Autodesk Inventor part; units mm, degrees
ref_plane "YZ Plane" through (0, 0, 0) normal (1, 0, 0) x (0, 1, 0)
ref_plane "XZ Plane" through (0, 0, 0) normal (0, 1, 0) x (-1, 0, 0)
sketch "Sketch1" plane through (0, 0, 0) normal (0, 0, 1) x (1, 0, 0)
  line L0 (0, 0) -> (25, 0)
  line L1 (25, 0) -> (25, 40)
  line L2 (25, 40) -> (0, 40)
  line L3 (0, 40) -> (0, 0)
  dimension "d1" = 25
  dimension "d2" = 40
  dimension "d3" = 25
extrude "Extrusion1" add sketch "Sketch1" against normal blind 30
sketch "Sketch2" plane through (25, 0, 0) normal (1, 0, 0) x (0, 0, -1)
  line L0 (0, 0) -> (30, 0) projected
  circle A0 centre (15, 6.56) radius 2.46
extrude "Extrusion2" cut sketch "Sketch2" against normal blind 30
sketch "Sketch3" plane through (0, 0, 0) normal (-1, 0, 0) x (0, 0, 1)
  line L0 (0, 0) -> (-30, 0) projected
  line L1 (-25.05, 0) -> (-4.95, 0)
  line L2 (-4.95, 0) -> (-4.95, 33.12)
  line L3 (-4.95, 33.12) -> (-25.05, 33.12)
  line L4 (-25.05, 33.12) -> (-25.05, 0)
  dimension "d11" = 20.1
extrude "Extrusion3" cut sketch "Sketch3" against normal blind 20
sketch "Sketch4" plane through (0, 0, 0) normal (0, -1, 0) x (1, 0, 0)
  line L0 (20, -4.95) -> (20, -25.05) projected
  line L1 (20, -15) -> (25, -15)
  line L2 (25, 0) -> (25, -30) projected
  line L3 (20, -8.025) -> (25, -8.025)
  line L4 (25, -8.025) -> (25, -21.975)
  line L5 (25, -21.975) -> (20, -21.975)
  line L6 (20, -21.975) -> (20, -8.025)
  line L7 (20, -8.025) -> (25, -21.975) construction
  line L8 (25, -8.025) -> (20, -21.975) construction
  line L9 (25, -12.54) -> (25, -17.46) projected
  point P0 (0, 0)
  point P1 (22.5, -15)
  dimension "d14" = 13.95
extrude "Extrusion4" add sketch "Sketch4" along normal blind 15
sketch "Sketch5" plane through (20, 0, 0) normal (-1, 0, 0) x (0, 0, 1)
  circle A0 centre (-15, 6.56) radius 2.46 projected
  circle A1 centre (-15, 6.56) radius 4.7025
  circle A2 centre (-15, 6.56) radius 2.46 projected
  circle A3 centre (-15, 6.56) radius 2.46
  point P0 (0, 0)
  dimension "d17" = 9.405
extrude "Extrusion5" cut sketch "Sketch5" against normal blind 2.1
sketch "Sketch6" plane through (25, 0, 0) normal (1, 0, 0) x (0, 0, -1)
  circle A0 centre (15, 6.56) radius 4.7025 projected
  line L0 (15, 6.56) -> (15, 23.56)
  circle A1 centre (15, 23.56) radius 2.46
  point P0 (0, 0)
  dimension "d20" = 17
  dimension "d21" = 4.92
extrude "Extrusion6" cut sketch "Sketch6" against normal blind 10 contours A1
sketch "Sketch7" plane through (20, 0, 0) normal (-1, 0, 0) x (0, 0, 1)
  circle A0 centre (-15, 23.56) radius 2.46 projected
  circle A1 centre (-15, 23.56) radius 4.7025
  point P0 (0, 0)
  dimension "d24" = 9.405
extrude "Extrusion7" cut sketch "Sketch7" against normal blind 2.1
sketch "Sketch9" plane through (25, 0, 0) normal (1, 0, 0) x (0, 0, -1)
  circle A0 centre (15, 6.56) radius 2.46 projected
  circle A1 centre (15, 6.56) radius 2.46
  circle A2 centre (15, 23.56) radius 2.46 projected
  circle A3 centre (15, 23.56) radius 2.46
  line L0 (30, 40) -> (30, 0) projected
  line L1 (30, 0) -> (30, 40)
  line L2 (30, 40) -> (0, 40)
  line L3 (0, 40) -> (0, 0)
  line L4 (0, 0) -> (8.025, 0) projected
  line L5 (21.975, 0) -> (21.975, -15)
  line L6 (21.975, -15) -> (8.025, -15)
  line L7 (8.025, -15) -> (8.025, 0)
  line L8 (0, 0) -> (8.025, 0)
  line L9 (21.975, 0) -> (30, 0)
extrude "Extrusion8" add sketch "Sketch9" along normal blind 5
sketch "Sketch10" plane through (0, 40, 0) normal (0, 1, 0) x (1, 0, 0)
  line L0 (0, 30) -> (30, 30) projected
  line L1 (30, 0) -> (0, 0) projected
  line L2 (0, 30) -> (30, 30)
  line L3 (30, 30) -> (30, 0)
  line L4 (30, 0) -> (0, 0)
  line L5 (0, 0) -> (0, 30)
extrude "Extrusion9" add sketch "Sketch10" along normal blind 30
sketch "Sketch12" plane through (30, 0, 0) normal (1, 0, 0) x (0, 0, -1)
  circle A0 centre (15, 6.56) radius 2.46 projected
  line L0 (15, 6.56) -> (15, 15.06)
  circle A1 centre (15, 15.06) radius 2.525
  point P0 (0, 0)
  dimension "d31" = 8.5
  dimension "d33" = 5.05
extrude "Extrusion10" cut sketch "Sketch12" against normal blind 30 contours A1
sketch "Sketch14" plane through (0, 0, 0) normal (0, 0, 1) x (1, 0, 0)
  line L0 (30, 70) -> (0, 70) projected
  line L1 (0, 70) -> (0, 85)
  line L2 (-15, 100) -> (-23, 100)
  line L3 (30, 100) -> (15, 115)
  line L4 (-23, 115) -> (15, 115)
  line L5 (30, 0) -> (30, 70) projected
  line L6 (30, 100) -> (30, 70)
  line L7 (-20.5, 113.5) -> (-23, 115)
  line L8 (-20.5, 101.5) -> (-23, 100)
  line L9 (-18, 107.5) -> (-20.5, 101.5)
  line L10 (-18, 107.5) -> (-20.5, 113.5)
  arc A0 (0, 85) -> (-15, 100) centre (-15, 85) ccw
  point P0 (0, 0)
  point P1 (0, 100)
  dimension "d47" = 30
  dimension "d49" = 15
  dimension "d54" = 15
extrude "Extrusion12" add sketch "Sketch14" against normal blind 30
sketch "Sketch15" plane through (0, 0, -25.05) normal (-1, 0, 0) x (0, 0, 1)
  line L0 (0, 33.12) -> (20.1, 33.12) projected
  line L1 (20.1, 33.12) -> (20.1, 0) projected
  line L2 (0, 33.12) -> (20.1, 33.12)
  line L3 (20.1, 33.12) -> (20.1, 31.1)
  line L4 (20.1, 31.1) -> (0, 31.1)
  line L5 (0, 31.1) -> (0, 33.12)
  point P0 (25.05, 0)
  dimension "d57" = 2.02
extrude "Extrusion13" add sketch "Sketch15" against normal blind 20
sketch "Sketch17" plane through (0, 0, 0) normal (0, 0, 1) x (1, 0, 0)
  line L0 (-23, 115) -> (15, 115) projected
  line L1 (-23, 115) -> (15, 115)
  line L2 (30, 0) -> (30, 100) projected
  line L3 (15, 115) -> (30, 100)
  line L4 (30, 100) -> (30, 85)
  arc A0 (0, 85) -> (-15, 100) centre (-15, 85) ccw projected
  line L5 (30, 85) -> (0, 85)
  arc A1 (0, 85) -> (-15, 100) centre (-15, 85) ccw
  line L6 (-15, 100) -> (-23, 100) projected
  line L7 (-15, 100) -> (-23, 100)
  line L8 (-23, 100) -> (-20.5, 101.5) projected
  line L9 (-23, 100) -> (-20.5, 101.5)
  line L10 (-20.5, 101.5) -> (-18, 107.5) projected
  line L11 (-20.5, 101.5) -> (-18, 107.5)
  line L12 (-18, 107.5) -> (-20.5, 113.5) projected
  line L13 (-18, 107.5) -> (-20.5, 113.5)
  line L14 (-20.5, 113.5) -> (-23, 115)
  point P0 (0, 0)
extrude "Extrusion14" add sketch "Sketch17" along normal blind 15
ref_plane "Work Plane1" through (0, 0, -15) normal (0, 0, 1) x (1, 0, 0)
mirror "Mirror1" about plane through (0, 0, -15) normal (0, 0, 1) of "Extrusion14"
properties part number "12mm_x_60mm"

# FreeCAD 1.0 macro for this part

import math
import FreeCAD as App
import Part
import Sketcher

V = App.Vector
Q = App.Units.Quantity


def add_polygon(sketch, points):
    """Adds a closed chain of lines whose ends are joined by coincident constraints."""
    first, n = sketch.GeometryCount, len(points)
    for a, b in zip(points, points[1:] + points[:1]):
        sketch.addGeometry(Part.LineSegment(App.Vector(*a, 0), App.Vector(*b, 0)), False)
    for i in range(n):
        sketch.addConstraint(Sketcher.Constraint("Coincident", first + i, 2, first + (i + 1) % n, 1))

doc = App.newDocument("Part")
body = doc.addObject("PartDesign::Body", "Body")

# Sketch on XY plane
sketch1 = doc.addObject("Sketcher::SketchObject", "Sketch")
body.addObject(sketch1)
sketch1.AttachmentSupport = (doc.XY_Plane, [""])
sketch1.MapMode = "FlatFace"
add_polygon(sketch1, [(0, 40), (0, 0), (25, 0), (25, 40)])  # lines 0-3
sketch1.addConstraint([
    Sketcher.Constraint("Vertical", 0),
    Sketcher.Constraint("Horizontal", 1),
    Sketcher.Constraint("Vertical", 2),
    Sketcher.Constraint("Horizontal", 3),
    Sketcher.Constraint("Coincident", 0, 2, -1, 1),
    Sketcher.Constraint("DistanceX", 1, 1, 1, 2, Q("25 mm")),
    Sketcher.Constraint("DistanceY", 0, 2, 0, 1, Q("40 mm")),
])
pad1 = doc.addObject("PartDesign::Pad", "Pad")
body.addObject(pad1)
pad1.Profile = sketch1
pad1.Length = 30
pad1.Reversed = True

# Sketch on YZ plane
sketch2 = doc.addObject("Sketcher::SketchObject", "Sketch001")
body.addObject(sketch2)
sketch2.AttachmentSupport = (doc.YZ_Plane, [""])
sketch2.MapMode = "FlatFace"
sketch2.AttachmentOffset = App.Placement(V(0, 0, 25), App.Rotation())
sketch2.addGeometry(Part.Circle(V(6.56, -15, 0), V(0, 0, 1), 2.46), False)
sketch2.addConstraint([
    Sketcher.Constraint("Diameter", 0, Q("4.92 mm")),
    Sketcher.Constraint("DistanceY", 0, 3, -1, 1, Q("15 mm")),
    Sketcher.Constraint("DistanceX", -1, 1, 0, 3, Q("6.56 mm")),
])
pocket1 = doc.addObject("PartDesign::Pocket", "Pocket")
body.addObject(pocket1)
pocket1.Profile = sketch2
pocket1.Length = 30

# Sketch on YZ plane
sketch3 = doc.addObject("Sketcher::SketchObject", "Sketch002")
body.addObject(sketch3)
sketch3.AttachmentSupport = (doc.YZ_Plane, [""])
sketch3.MapMode = "FlatFace"
add_polygon(sketch3, [(0, -25.05), (0, -4.95), (33.12, -4.95), (33.12, -25.05)])  # lines 0-3
sketch3.addConstraint([
    Sketcher.Constraint("Vertical", 0),
    Sketcher.Constraint("Horizontal", 1),
    Sketcher.Constraint("Vertical", 2),
    Sketcher.Constraint("Horizontal", 3),
    Sketcher.Constraint("PointOnObject", 0, 2, -2),
    Sketcher.Constraint("DistanceY", 0, 1, 0, 2, Q("20.1 mm")),
    Sketcher.Constraint("DistanceX", 1, 1, 1, 2, Q("33.12 mm")),
    Sketcher.Constraint("DistanceY", 0, 2, -1, 1, Q("4.95 mm")),
])
pocket2 = doc.addObject("PartDesign::Pocket", "Pocket001")
body.addObject(pocket2)
pocket2.Profile = sketch3
pocket2.Length = 20
pocket2.Reversed = True

# Sketch on XZ plane
sketch4 = doc.addObject("Sketcher::SketchObject", "Sketch003")
body.addObject(sketch4)
sketch4.AttachmentSupport = (doc.XZ_Plane, [""])
sketch4.MapMode = "FlatFace"
add_polygon(sketch4, [(25, -8.025), (20, -8.025), (20, -21.975), (25, -21.975)])  # lines 0-3
sketch4.addConstraint([
    Sketcher.Constraint("Horizontal", 0),
    Sketcher.Constraint("Vertical", 1),
    Sketcher.Constraint("Horizontal", 2),
    Sketcher.Constraint("Vertical", 3),
    Sketcher.Constraint("DistanceY", 1, 2, 1, 1, Q("13.95 mm")),
    Sketcher.Constraint("DistanceX", 0, 2, 0, 1, Q("5 mm")),
    Sketcher.Constraint("DistanceX", -1, 1, 0, 2, Q("20 mm")),
    Sketcher.Constraint("DistanceY", 0, 2, -1, 1, Q("8.025 mm")),
])
pad2 = doc.addObject("PartDesign::Pad", "Pad001")
body.addObject(pad2)
pad2.Profile = sketch4
pad2.Length = 15

# Sketch on YZ plane
sketch5 = doc.addObject("Sketcher::SketchObject", "Sketch004")
body.addObject(sketch5)
sketch5.AttachmentSupport = (doc.YZ_Plane, [""])
sketch5.MapMode = "FlatFace"
sketch5.AttachmentOffset = App.Placement(V(0, 0, 20), App.Rotation())
sketch5.addGeometry([
    Part.Circle(V(6.56, -15, 0), V(0, 0, 1), 4.7025),
    Part.Circle(V(6.56, -15, 0), V(0, 0, 1), 2.46),
], False)
sketch5.addConstraint([
    Sketcher.Constraint("Coincident", 1, 3, 0, 3),
    Sketcher.Constraint("Diameter", 0, Q("9.405 mm")),
    Sketcher.Constraint("Diameter", 1, Q("4.92 mm")),
    Sketcher.Constraint("DistanceY", 0, 3, -1, 1, Q("15 mm")),
    Sketcher.Constraint("DistanceX", -1, 1, 0, 3, Q("6.56 mm")),
])
pocket3 = doc.addObject("PartDesign::Pocket", "Pocket002")
body.addObject(pocket3)
pocket3.Profile = sketch5
pocket3.Length = 2.1
pocket3.Reversed = True

# Sketch on YZ plane
sketch6 = doc.addObject("Sketcher::SketchObject", "Sketch005")
body.addObject(sketch6)
sketch6.AttachmentSupport = (doc.YZ_Plane, [""])
sketch6.MapMode = "FlatFace"
sketch6.AttachmentOffset = App.Placement(V(0, 0, 25), App.Rotation())
sketch6.addGeometry(Part.Circle(V(23.56, -15, 0), V(0, 0, 1), 2.46), False)
sketch6.addConstraint([
    Sketcher.Constraint("Diameter", 0, Q("4.92 mm")),
    Sketcher.Constraint("DistanceY", 0, 3, -1, 1, Q("15 mm")),
    Sketcher.Constraint("DistanceX", -1, 1, 0, 3, Q("23.56 mm")),
])
pocket4 = doc.addObject("PartDesign::Pocket", "Pocket003")
body.addObject(pocket4)
pocket4.Profile = sketch6
pocket4.Length = 10

# Sketch on YZ plane
sketch7 = doc.addObject("Sketcher::SketchObject", "Sketch006")
body.addObject(sketch7)
sketch7.AttachmentSupport = (doc.YZ_Plane, [""])
sketch7.MapMode = "FlatFace"
sketch7.AttachmentOffset = App.Placement(V(0, 0, 20), App.Rotation())
sketch7.addGeometry([
    Part.Circle(V(23.56, -15, 0), V(0, 0, 1), 4.7025),
    Part.Circle(V(23.56, -15, 0), V(0, 0, 1), 2.46),
], False)
sketch7.addConstraint([
    Sketcher.Constraint("Coincident", 1, 3, 0, 3),
    Sketcher.Constraint("Diameter", 0, Q("9.405 mm")),
    Sketcher.Constraint("Diameter", 1, Q("4.92 mm")),
    Sketcher.Constraint("DistanceY", 0, 3, -1, 1, Q("15 mm")),
    Sketcher.Constraint("DistanceX", -1, 1, 0, 3, Q("23.56 mm")),
])
pocket5 = doc.addObject("PartDesign::Pocket", "Pocket004")
body.addObject(pocket5)
pocket5.Profile = sketch7
pocket5.Length = 2.1
pocket5.Reversed = True

# Sketch on YZ plane
sketch8 = doc.addObject("Sketcher::SketchObject", "Sketch007")
body.addObject(sketch8)
sketch8.AttachmentSupport = (doc.YZ_Plane, [""])
sketch8.MapMode = "FlatFace"
sketch8.AttachmentOffset = App.Placement(V(0, 0, 25), App.Rotation())
add_polygon(sketch8, [(0, -30), (40, -30), (40, 0), (0, 0), (0, -8.025), (-15, -8.025), (-15, -21.975), (0, -21.975)])  # lines 0-7
sketch8.addGeometry(Part.Circle(V(6.56, -15, 0), V(0, 0, 1), 2.46), False)  # 8
sketch8.addGeometry(Part.Circle(V(23.56, -15, 0), V(0, 0, 1), 2.46), False)  # 9
sketch8.addConstraint([
    Sketcher.Constraint("Horizontal", 0),
    Sketcher.Constraint("Vertical", 1),
    Sketcher.Constraint("Horizontal", 2),
    Sketcher.Constraint("Vertical", 3),
    Sketcher.Constraint("Horizontal", 4),
    Sketcher.Constraint("Vertical", 5),
    Sketcher.Constraint("Horizontal", 6),
    Sketcher.Constraint("Vertical", 7),
    Sketcher.Constraint("Coincident", 2, 2, -1, 1),
    Sketcher.Constraint("Equal", 8, 9),
    Sketcher.Constraint("PointOnObject", 6, 2, -2),
    Sketcher.Constraint("Horizontal", 8, 3, 9, 3),
    Sketcher.Constraint("Equal", 3, 7),
    Sketcher.Constraint("Diameter", 8, Q("4.92 mm")),
    Sketcher.Constraint("DistanceX", 0, 1, 0, 2, Q("40 mm")),
    Sketcher.Constraint("DistanceX", 4, 2, 4, 1, Q("15 mm")),
    Sketcher.Constraint("DistanceY", 1, 1, 1, 2, Q("30 mm")),
    Sketcher.Constraint("DistanceY", 8, 3, -1, 1, Q("15 mm")),
    Sketcher.Constraint("DistanceX", 8, 3, 9, 3, Q("17 mm")),
    Sketcher.Constraint("DistanceY", 5, 2, 5, 1, Q("13.95 mm")),
    Sketcher.Constraint("DistanceX", -1, 1, 8, 3, Q("6.56 mm")),
])
pad3 = doc.addObject("PartDesign::Pad", "Pad002")
body.addObject(pad3)
pad3.Profile = sketch8
pad3.Length = 5

# Sketch on XZ plane
sketch9 = doc.addObject("Sketcher::SketchObject", "Sketch008")
body.addObject(sketch9)
sketch9.AttachmentSupport = (doc.XZ_Plane, [""])
sketch9.MapMode = "FlatFace"
sketch9.AttachmentOffset = App.Placement(V(0, 0, -40), App.Rotation())
add_polygon(sketch9, [(30, -30), (0, -30), (0, 0), (30, 0)])  # lines 0-3
sketch9.addConstraint([
    Sketcher.Constraint("Horizontal", 0),
    Sketcher.Constraint("Vertical", 1),
    Sketcher.Constraint("Horizontal", 2),
    Sketcher.Constraint("Vertical", 3),
    Sketcher.Constraint("Coincident", 1, 2, -1, 1),
    Sketcher.Constraint("Equal", 2, 1),
    Sketcher.Constraint("DistanceX", 0, 2, 0, 1, Q("30 mm")),
])
pad4 = doc.addObject("PartDesign::Pad", "Pad003")
body.addObject(pad4)
pad4.Profile = sketch9
pad4.Length = 30
pad4.Reversed = True

# Sketch on YZ plane
sketch10 = doc.addObject("Sketcher::SketchObject", "Sketch009")
body.addObject(sketch10)
sketch10.AttachmentSupport = (doc.YZ_Plane, [""])
sketch10.MapMode = "FlatFace"
sketch10.AttachmentOffset = App.Placement(V(0, 0, 30), App.Rotation())
sketch10.addGeometry(Part.Circle(V(15.06, -15, 0), V(0, 0, 1), 2.525), False)
sketch10.addConstraint([
    Sketcher.Constraint("Diameter", 0, Q("5.05 mm")),
    Sketcher.Constraint("DistanceY", 0, 3, -1, 1, Q("15 mm")),
    Sketcher.Constraint("DistanceX", -1, 1, 0, 3, Q("15.06 mm")),
])
pocket6 = doc.addObject("PartDesign::Pocket", "Pocket005")
body.addObject(pocket6)
pocket6.Profile = sketch10
pocket6.Length = 30

# Sketch on XY plane
sketch11 = doc.addObject("Sketcher::SketchObject", "Sketch010")
body.addObject(sketch11)
sketch11.AttachmentSupport = (doc.XY_Plane, [""])
sketch11.MapMode = "FlatFace"
sketch11.addGeometry([
    Part.LineSegment(V(0, 70, 0), V(30, 70, 0)),  # 0
    Part.LineSegment(V(30, 70, 0), V(30, 100, 0)),  # 1
    Part.LineSegment(V(30, 100, 0), V(15, 115, 0)),  # 2
    Part.LineSegment(V(15, 115, 0), V(-23, 115, 0)),  # 3
    Part.LineSegment(V(-23, 115, 0), V(-20.5, 113.5, 0)),  # 4
    Part.LineSegment(V(-20.5, 113.5, 0), V(-18, 107.5, 0)),  # 5
    Part.LineSegment(V(-18, 107.5, 0), V(-20.5, 101.5, 0)),  # 6
    Part.LineSegment(V(-20.5, 101.5, 0), V(-23, 100, 0)),  # 7
    Part.LineSegment(V(-23, 100, 0), V(-15, 100, 0)),  # 8
    Part.ArcOfCircle(Part.Circle(V(-15, 85, 0), V(0, 0, 1), 15), math.radians(0), math.radians(90)),  # 9
    Part.LineSegment(V(0, 85, 0), V(0, 70, 0)),  # 10
], False)
sketch11.addConstraint([
    Sketcher.Constraint("Coincident", 0, 2, 1, 1),
    Sketcher.Constraint("Coincident", 1, 2, 2, 1),
    Sketcher.Constraint("Coincident", 2, 2, 3, 1),
    Sketcher.Constraint("Coincident", 3, 2, 4, 1),
    Sketcher.Constraint("Coincident", 4, 2, 5, 1),
    Sketcher.Constraint("Coincident", 5, 2, 6, 1),
    Sketcher.Constraint("Coincident", 6, 2, 7, 1),
    Sketcher.Constraint("Coincident", 7, 2, 8, 1),
    Sketcher.Constraint("Tangent", 8, 2, 9, 2),
    Sketcher.Constraint("Tangent", 9, 1, 10, 1),
    Sketcher.Constraint("Coincident", 10, 2, 0, 1),
    Sketcher.Constraint("Horizontal", 0),
    Sketcher.Constraint("Vertical", 1),
    Sketcher.Constraint("Horizontal", 3),
    Sketcher.Constraint("Horizontal", 8),
    Sketcher.Constraint("Vertical", 10),
    Sketcher.Constraint("PointOnObject", 9, 1, -2),
    Sketcher.Constraint("Horizontal", 1, 2, 7, 2),
    Sketcher.Constraint("Vertical", 4, 2, 6, 2),
    Sketcher.Constraint("Vertical", 3, 2, 7, 2),
    Sketcher.Constraint("Equal", 0, 1),
    Sketcher.Constraint("Equal", 5, 6),
    Sketcher.Constraint("Equal", 4, 7),
    Sketcher.Constraint("Radius", 9, Q("15 mm")),
    Sketcher.Constraint("DistanceX", 0, 1, 0, 2, Q("30 mm")),
    Sketcher.Constraint("DistanceX", -1, 1, 2, 2, Q("15 mm")),
    Sketcher.Constraint("DistanceY", 1, 2, 2, 2, Q("15 mm")),
    Sketcher.Constraint("DistanceX", 3, 2, 3, 1, Q("38 mm")),
    Sketcher.Constraint("DistanceY", -1, 1, 9, 3, Q("85 mm")),
    Sketcher.Constraint("DistanceX", 5, 2, -1, 1, Q("18 mm")),
    Sketcher.Constraint("DistanceY", 5, 2, 4, 2, Q("6 mm")),
    Sketcher.Constraint("Distance", 5, Q("6.5 mm")),
])
pad5 = doc.addObject("PartDesign::Pad", "Pad004")
body.addObject(pad5)
pad5.Profile = sketch11
pad5.Length = 30
pad5.Reversed = True

# Sketch on YZ plane
sketch12 = doc.addObject("Sketcher::SketchObject", "Sketch011")
body.addObject(sketch12)
sketch12.AttachmentSupport = (doc.YZ_Plane, [""])
sketch12.MapMode = "FlatFace"
add_polygon(sketch12, [(33.12, -4.95), (33.12, -25.05), (31.1, -25.05), (31.1, -4.95)])  # lines 0-3
sketch12.addConstraint([
    Sketcher.Constraint("Vertical", 0),
    Sketcher.Constraint("Horizontal", 1),
    Sketcher.Constraint("Vertical", 2),
    Sketcher.Constraint("Horizontal", 3),
    Sketcher.Constraint("DistanceX", 1, 2, 1, 1, Q("2.02 mm")),
    Sketcher.Constraint("DistanceY", 0, 2, 0, 1, Q("20.1 mm")),
    Sketcher.Constraint("DistanceX", -1, 1, 1, 2, Q("31.1 mm")),
    Sketcher.Constraint("DistanceY", 0, 2, -1, 1, Q("25.05 mm")),
])
pad6 = doc.addObject("PartDesign::Pad", "Pad005")
body.addObject(pad6)
pad6.Profile = sketch12
pad6.Length = 20

# Sketch on XY plane
sketch13 = doc.addObject("Sketcher::SketchObject", "Sketch012")
body.addObject(sketch13)
sketch13.AttachmentSupport = (doc.XY_Plane, [""])
sketch13.MapMode = "FlatFace"
sketch13.addGeometry([
    Part.LineSegment(V(15, 115, 0), V(-23, 115, 0)),  # 0
    Part.LineSegment(V(-23, 115, 0), V(-20.5, 113.5, 0)),  # 1
    Part.LineSegment(V(-20.5, 113.5, 0), V(-18, 107.5, 0)),  # 2
    Part.LineSegment(V(-18, 107.5, 0), V(-20.5, 101.5, 0)),  # 3
    Part.LineSegment(V(-20.5, 101.5, 0), V(-23, 100, 0)),  # 4
    Part.LineSegment(V(-23, 100, 0), V(-15, 100, 0)),  # 5
    Part.ArcOfCircle(Part.Circle(V(-15, 85, 0), V(0, 0, 1), 15), math.radians(0), math.radians(90)),  # 6
    Part.LineSegment(V(0, 85, 0), V(30, 85, 0)),  # 7
    Part.LineSegment(V(30, 85, 0), V(30, 100, 0)),  # 8
    Part.LineSegment(V(30, 100, 0), V(15, 115, 0)),  # 9
], False)
sketch13.addConstraint([
    Sketcher.Constraint("Coincident", 0, 2, 1, 1),
    Sketcher.Constraint("Coincident", 1, 2, 2, 1),
    Sketcher.Constraint("Coincident", 2, 2, 3, 1),
    Sketcher.Constraint("Coincident", 3, 2, 4, 1),
    Sketcher.Constraint("Coincident", 4, 2, 5, 1),
    Sketcher.Constraint("Tangent", 5, 2, 6, 2),
    Sketcher.Constraint("Coincident", 6, 1, 7, 1),
    Sketcher.Constraint("Coincident", 7, 2, 8, 1),
    Sketcher.Constraint("Coincident", 8, 2, 9, 1),
    Sketcher.Constraint("Coincident", 9, 2, 0, 1),
    Sketcher.Constraint("Horizontal", 0),
    Sketcher.Constraint("Horizontal", 5),
    Sketcher.Constraint("Horizontal", 7),
    Sketcher.Constraint("Vertical", 8),
    Sketcher.Constraint("PointOnObject", 6, 1, -2),
    Sketcher.Constraint("Horizontal", 5, 2, 8, 2),
    Sketcher.Constraint("Vertical", 1, 2, 3, 2),
    Sketcher.Constraint("Vertical", 0, 2, 4, 2),
    Sketcher.Constraint("Equal", 2, 3),
    Sketcher.Constraint("Equal", 1, 4),
    Sketcher.Constraint("Radius", 6, Q("15 mm")),
    Sketcher.Constraint("DistanceX", 0, 2, 0, 1, Q("38 mm")),
    Sketcher.Constraint("DistanceX", 5, 1, 5, 2, Q("8 mm")),
    Sketcher.Constraint("DistanceX", 7, 1, 7, 2, Q("30 mm")),
    Sketcher.Constraint("DistanceY", 8, 1, 8, 2, Q("15 mm")),
    Sketcher.Constraint("Angle", 9, Q("135 deg")),
    Sketcher.Constraint("DistanceY", -1, 1, 6, 3, Q("85 mm")),
    Sketcher.Constraint("DistanceX", 2, 2, -1, 1, Q("18 mm")),
    Sketcher.Constraint("DistanceY", 2, 2, 1, 2, Q("6 mm")),
    Sketcher.Constraint("Distance", 2, Q("6.5 mm")),
])
pad7 = doc.addObject("PartDesign::Pad", "Pad006")
body.addObject(pad7)
pad7.Profile = sketch13
pad7.Length = 15
doc.recompute()

datumplane = doc.addObject("PartDesign::Plane", "DatumPlane")
body.addObject(datumplane)
datumplane.AttachmentSupport = (doc.XY_Plane, [""])
datumplane.MapMode = "FlatFace"
datumplane.AttachmentOffset = App.Placement(V(0, 0, -15), App.Rotation())
mirrored = doc.addObject("PartDesign::Mirrored", "Mirrored")
body.addObject(mirrored)
mirrored.Originals = [pad7]
mirrored.MirrorPlane = (datumplane, [""])
body.Tip = mirrored

doc.recompute()
